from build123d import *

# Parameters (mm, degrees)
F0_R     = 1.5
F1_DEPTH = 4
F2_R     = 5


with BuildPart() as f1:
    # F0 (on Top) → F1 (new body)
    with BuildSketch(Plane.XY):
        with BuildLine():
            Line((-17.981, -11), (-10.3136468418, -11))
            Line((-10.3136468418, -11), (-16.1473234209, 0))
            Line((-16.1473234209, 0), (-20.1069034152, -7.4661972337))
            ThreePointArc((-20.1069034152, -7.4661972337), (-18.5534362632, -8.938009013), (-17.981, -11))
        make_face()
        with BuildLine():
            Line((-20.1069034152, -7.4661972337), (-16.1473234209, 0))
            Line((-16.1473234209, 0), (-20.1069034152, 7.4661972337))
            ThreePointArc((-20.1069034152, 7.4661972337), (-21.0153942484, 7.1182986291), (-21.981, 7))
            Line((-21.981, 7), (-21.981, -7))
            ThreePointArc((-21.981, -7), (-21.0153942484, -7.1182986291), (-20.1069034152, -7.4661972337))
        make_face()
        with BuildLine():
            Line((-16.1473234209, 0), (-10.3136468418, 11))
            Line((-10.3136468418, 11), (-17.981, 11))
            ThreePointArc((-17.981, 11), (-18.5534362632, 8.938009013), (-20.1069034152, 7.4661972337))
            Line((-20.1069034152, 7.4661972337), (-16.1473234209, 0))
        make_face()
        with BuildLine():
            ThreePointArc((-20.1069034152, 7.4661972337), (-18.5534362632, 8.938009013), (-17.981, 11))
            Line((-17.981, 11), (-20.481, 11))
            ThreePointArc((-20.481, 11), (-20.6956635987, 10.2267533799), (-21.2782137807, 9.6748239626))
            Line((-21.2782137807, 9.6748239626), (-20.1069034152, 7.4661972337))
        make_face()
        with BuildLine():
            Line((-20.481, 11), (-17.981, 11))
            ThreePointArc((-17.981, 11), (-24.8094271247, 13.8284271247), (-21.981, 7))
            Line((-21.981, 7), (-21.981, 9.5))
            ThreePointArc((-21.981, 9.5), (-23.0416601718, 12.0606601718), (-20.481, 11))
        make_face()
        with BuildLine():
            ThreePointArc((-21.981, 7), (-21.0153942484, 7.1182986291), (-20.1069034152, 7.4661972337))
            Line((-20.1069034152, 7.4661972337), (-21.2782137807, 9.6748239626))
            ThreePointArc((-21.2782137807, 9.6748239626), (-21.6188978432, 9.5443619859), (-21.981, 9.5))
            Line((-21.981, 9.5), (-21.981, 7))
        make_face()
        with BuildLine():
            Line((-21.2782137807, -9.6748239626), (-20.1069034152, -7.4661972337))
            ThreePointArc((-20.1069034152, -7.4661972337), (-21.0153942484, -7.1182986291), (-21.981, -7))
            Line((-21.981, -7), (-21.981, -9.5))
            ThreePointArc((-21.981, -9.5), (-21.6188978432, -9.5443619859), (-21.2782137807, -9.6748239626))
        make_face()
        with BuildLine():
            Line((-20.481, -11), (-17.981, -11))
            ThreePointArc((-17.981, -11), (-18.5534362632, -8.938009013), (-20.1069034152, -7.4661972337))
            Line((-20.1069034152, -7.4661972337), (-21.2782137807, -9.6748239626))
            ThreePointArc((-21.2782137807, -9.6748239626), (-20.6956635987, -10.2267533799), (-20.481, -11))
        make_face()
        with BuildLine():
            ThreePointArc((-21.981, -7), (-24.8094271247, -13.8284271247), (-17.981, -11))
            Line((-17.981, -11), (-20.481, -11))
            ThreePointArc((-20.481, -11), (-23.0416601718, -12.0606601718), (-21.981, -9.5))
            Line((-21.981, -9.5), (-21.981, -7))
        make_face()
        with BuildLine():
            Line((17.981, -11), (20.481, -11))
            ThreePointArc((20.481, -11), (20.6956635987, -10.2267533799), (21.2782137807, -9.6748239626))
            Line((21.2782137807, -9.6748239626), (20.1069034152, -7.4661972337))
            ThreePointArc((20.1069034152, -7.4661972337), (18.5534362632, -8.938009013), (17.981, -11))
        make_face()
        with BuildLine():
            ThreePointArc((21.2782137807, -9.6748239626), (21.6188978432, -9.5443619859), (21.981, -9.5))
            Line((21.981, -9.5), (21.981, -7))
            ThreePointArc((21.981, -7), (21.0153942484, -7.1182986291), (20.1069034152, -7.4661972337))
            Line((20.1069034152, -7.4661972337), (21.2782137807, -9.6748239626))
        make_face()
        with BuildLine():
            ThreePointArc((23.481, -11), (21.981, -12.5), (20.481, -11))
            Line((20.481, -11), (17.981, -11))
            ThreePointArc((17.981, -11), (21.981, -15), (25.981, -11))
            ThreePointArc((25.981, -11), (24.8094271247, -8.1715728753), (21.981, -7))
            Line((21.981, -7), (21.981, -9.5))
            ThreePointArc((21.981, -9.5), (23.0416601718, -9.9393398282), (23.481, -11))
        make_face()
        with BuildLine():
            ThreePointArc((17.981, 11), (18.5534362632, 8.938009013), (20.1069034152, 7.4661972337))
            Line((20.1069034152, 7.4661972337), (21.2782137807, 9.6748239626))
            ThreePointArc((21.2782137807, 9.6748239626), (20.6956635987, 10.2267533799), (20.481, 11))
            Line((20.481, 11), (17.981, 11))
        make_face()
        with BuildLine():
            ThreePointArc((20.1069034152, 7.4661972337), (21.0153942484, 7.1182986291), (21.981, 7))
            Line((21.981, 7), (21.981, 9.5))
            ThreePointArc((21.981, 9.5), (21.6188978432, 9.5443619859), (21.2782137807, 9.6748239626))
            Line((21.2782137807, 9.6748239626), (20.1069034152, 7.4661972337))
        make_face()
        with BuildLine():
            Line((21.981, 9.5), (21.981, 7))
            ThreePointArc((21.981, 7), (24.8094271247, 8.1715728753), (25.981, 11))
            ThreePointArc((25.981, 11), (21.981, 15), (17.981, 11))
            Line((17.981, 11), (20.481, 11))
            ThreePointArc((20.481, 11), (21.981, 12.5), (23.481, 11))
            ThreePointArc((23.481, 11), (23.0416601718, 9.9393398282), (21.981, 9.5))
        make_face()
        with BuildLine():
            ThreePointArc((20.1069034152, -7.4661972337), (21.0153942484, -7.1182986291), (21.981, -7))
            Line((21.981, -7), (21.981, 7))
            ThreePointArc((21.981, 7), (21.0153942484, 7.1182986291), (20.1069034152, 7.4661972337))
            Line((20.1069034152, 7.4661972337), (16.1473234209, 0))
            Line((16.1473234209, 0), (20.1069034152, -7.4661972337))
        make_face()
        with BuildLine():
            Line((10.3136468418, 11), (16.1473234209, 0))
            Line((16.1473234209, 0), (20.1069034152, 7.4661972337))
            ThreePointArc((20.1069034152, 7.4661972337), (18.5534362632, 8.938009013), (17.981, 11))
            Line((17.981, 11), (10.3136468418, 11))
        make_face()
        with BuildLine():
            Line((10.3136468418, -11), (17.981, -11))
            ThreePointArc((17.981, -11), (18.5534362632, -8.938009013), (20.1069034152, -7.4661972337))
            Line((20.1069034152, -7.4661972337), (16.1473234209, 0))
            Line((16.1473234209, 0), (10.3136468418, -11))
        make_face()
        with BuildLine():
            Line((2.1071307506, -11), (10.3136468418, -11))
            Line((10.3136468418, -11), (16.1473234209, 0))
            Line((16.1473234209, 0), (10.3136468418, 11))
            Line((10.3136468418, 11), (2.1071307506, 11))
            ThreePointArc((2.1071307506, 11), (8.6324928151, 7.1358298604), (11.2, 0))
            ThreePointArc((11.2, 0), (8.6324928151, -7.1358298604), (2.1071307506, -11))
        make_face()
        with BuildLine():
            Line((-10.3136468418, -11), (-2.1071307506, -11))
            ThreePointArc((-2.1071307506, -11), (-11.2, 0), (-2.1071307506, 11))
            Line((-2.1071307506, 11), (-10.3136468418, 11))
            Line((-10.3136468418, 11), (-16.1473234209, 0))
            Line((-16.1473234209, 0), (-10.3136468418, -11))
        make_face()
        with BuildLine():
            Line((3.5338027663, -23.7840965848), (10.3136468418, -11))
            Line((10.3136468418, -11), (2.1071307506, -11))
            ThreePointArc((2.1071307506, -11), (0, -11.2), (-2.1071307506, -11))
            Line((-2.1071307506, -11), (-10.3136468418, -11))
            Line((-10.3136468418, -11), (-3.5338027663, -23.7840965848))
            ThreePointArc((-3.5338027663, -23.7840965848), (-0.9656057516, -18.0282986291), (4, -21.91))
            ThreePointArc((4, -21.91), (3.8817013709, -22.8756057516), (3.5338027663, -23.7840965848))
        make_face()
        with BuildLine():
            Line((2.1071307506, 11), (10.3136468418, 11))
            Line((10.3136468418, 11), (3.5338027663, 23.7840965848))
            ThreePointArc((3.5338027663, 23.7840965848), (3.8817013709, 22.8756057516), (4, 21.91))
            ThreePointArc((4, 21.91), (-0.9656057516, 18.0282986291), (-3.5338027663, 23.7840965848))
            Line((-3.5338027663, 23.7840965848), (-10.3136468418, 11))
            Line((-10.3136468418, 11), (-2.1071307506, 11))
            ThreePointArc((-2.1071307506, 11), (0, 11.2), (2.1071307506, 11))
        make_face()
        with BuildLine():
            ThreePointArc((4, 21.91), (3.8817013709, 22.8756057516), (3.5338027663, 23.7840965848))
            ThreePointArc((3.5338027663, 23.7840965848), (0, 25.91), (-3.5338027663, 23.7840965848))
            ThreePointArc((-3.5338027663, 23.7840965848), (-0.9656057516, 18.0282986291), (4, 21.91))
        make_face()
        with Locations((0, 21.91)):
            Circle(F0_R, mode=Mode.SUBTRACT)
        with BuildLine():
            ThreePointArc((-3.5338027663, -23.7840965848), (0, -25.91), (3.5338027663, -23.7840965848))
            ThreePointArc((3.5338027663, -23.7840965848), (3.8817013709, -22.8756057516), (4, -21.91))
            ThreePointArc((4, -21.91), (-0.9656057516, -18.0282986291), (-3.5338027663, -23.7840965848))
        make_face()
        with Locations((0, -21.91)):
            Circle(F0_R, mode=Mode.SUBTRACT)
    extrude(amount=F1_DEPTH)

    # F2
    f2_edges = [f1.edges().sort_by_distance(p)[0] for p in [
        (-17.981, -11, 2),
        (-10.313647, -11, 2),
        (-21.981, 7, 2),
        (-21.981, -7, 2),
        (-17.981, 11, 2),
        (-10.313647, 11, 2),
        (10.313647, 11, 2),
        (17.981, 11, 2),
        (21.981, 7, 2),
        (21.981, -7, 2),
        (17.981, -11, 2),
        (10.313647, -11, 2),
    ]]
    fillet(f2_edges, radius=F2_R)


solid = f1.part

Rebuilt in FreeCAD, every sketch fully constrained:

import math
import FreeCAD as App
import Part
import Sketcher
from FreeCAD import Vector


def edges_at(feature, points):
    """Names of the edges that pass closest to the given points."""
    edges = feature.Shape.Edges
    near = lambda p: min(range(len(edges)), key=lambda i: edges[i].distToShape(Part.Vertex(*p))[0])
    return sorted({f"Edge{near(p) + 1}" for p in points})

doc = App.newDocument("Part")
body = doc.addObject("PartDesign::Body", "Body")

sketch1 = doc.addObject("Sketcher::SketchObject", "Sketch")
body.addObject(sketch1)
sketch1.AttachmentSupport = (doc.XY_Plane, [""])
sketch1.MapMode = "FlatFace"
sketch1.addGeometry(Part.ArcOfCircle(Part.Circle(Vector(-22, 11, 0), Vector(0, 0, 1), 4), math.radians(0), math.radians(270)), False)
sketch1.addGeometry(Part.LineSegment(Vector(-22, 7, 0), Vector(-22, -7, 0)), False)
sketch1.addGeometry(Part.ArcOfCircle(Part.Circle(Vector(-22, -11, 0), Vector(0, 0, 1), 4), math.radians(90), math.radians(360)), False)
sketch1.addGeometry(Part.LineSegment(Vector(-18, -11, 0), Vector(-10.3, -11, 0)), False)
sketch1.addGeometry(Part.LineSegment(Vector(-10.3, -11, 0), Vector(-3.5, -23.8, 0)), False)
sketch1.addGeometry(Part.ArcOfCircle(Part.Circle(Vector(0, -21.9, 0), Vector(0, 0, 1), 4), math.radians(-152), math.radians(-28)), False)
sketch1.addGeometry(Part.LineSegment(Vector(3.5, -23.8, 0), Vector(10.3, -11, 0)), False)
sketch1.addGeometry(Part.LineSegment(Vector(10.3, -11, 0), Vector(18, -11, 0)), False)
sketch1.addGeometry(Part.ArcOfCircle(Part.Circle(Vector(22, -11, 0), Vector(0, 0, 1), 4), math.radians(180), math.radians(360)), False)
sketch1.addGeometry(Part.ArcOfCircle(Part.Circle(Vector(22, -11, 0), Vector(0, 0, 1), 4), math.radians(0), math.radians(90)), False)
sketch1.addGeometry(Part.LineSegment(Vector(22, -7, 0), Vector(22, 7, 0)), False)
sketch1.addGeometry(Part.ArcOfCircle(Part.Circle(Vector(22, 11, 0), Vector(0, 0, 1), 4), math.radians(-90), math.radians(0)), False)
sketch1.addGeometry(Part.ArcOfCircle(Part.Circle(Vector(22, 11, 0), Vector(0, 0, 1), 4), math.radians(0), math.radians(180)), False)
sketch1.addGeometry(Part.LineSegment(Vector(18, 11, 0), Vector(10.3, 11, 0)), False)
sketch1.addGeometry(Part.LineSegment(Vector(10.3, 11, 0), Vector(3.5, 23.8, 0)), False)
sketch1.addGeometry(Part.ArcOfCircle(Part.Circle(Vector(0, 21.9, 0), Vector(0, 0, 1), 4), math.radians(28), math.radians(152)), False)
sketch1.addGeometry(Part.LineSegment(Vector(-3.5, 23.8, 0), Vector(-10.3, 11, 0)), False)
sketch1.addGeometry(Part.LineSegment(Vector(-10.3, 11, 0), Vector(-18, 11, 0)), False)
sketch1.addGeometry(Part.ArcOfCircle(Part.Circle(Vector(-22, -11, 0), Vector(0, 0, 1), 1.5), math.radians(62), math.radians(90)), False)
sketch1.addGeometry(Part.ArcOfCircle(Part.Circle(Vector(-22, -11, 0), Vector(0, 0, 1), 1.5), math.radians(0), math.radians(62)), False)
sketch1.addGeometry(Part.ArcOfCircle(Part.Circle(Vector(-22, -11, 0), Vector(0, 0, 1), 1.5), math.radians(90), math.radians(360)), False)
sketch1.addGeometry(Part.Circle(Vector(0, -21.9, 0), Vector(0, 0, 1), 1.5), False)
sketch1.addGeometry(Part.ArcOfCircle(Part.Circle(Vector(22, -11, 0), Vector(0, 0, 1), 1.5), math.radians(118), math.radians(180)), False)
sketch1.addGeometry(Part.ArcOfCircle(Part.Circle(Vector(22, -11, 0), Vector(0, 0, 1), 1.5), math.radians(90), math.radians(118)), False)
sketch1.addGeometry(Part.ArcOfCircle(Part.Circle(Vector(22, -11, 0), Vector(0, 0, 1), 1.5), math.radians(0), math.radians(90)), False)
sketch1.addGeometry(Part.ArcOfCircle(Part.Circle(Vector(22, -11, 0), Vector(0, 0, 1), 1.5), math.radians(180), math.radians(360)), False)
sketch1.addGeometry(Part.ArcOfCircle(Part.Circle(Vector(-22, 11, 0), Vector(0, 0, 1), 1.5), math.radians(-62), math.radians(0)), False)
sketch1.addGeometry(Part.ArcOfCircle(Part.Circle(Vector(-22, 11, 0), Vector(0, 0, 1), 1.5), math.radians(-90), math.radians(-62)), False)
sketch1.addGeometry(Part.ArcOfCircle(Part.Circle(Vector(-22, 11, 0), Vector(0, 0, 1), 1.5), math.radians(0), math.radians(270)), False)
sketch1.addGeometry(Part.ArcOfCircle(Part.Circle(Vector(0, 0, 0), Vector(0, 0, 1), 11.2), math.radians(0), math.radians(79)), False)
sketch1.addGeometry(Part.ArcOfCircle(Part.Circle(Vector(0, 0, 0), Vector(0, 0, 1), 11.2), math.radians(-79), math.radians(0)), False)
sketch1.addGeometry(Part.ArcOfCircle(Part.Circle(Vector(0, 0, 0), Vector(0, 0, 1), 11.2), math.radians(-101), math.radians(-79)), False)
sketch1.addGeometry(Part.ArcOfCircle(Part.Circle(Vector(0, 0, 0), Vector(0, 0, 1), 11.2), math.radians(101), math.radians(259)), False)
sketch1.addGeometry(Part.ArcOfCircle(Part.Circle(Vector(0, 0, 0), Vector(0, 0, 1), 11.2), math.radians(79), math.radians(101)), False)
sketch1.addGeometry(Part.ArcOfCircle(Part.Circle(Vector(22, 11, 0), Vector(0, 0, 1), 1.5), math.radians(0), math.radians(180)), False)
sketch1.addGeometry(Part.ArcOfCircle(Part.Circle(Vector(22, 11, 0), Vector(0, 0, 1), 1.5), math.radians(-90), math.radians(0)), False)
sketch1.addGeometry(Part.ArcOfCircle(Part.Circle(Vector(22, 11, 0), Vector(0, 0, 1), 1.5), math.radians(-118), math.radians(-90)), False)
sketch1.addGeometry(Part.ArcOfCircle(Part.Circle(Vector(22, 11, 0), Vector(0, 0, 1), 1.5), math.radians(180), math.radians(242)), False)
sketch1.addGeometry(Part.Circle(Vector(0, 21.9, 0), Vector(0, 0, 1), 1.5), False)
sketch1.addConstraint(Sketcher.Constraint("Coincident", 0, 2, 1, 1))
sketch1.addConstraint(Sketcher.Constraint("Coincident", 1, 2, 2, 1))
sketch1.addConstraint(Sketcher.Constraint("Coincident", 2, 2, 3, 1))
sketch1.addConstraint(Sketcher.Constraint("Coincident", 3, 2, 4, 1))
sketch1.addConstraint(Sketcher.Constraint("Tangent", 4, 2, 5, 1))
sketch1.addConstraint(Sketcher.Constraint("Tangent", 5, 2, 6, 1))
sketch1.addConstraint(Sketcher.Constraint("Coincident", 6, 2, 7, 1))
sketch1.addConstraint(Sketcher.Constraint("Coincident", 7, 2, 8, 1))
sketch1.addConstraint(Sketcher.Constraint("Tangent", 8, 2, 9, 1))
sketch1.addConstraint(Sketcher.Constraint("Coincident", 9, 2, 10, 1))
sketch1.addConstraint(Sketcher.Constraint("Coincident", 10, 2, 11, 1))
sketch1.addConstraint(Sketcher.Constraint("Tangent", 11, 2, 12, 1))
sketch1.addConstraint(Sketcher.Constraint("Coincident", 12, 2, 13, 1))
sketch1.addConstraint(Sketcher.Constraint("Coincident", 13, 2, 14, 1))
sketch1.addConstraint(Sketcher.Constraint("Tangent", 14, 2, 15, 1))
sketch1.addConstraint(Sketcher.Constraint("Tangent", 15, 2, 16, 1))
sketch1.addConstraint(Sketcher.Constraint("Coincident", 16, 2, 17, 1))
sketch1.addConstraint(Sketcher.Constraint("Coincident", 17, 2, 0, 1))
sketch1.addConstraint(Sketcher.Constraint("Tangent", 18, 1, 19, 2))
sketch1.addConstraint(Sketcher.Constraint("Tangent", 19, 1, 20, 2))
sketch1.addConstraint(Sketcher.Constraint("Tangent", 20, 1, 18, 2))
sketch1.addConstraint(Sketcher.Constraint("Tangent", 22, 1, 23, 2))
sketch1.addConstraint(Sketcher.Constraint("Tangent", 23, 1, 24, 2))
sketch1.addConstraint(Sketcher.Constraint("Tangent", 24, 1, 25, 2))
sketch1.addConstraint(Sketcher.Constraint("Tangent", 25, 1, 22, 2))
sketch1.addConstraint(Sketcher.Constraint("Tangent", 26, 1, 27, 2))
sketch1.addConstraint(Sketcher.Constraint("Tangent", 27, 1, 28, 2))
sketch1.addConstraint(Sketcher.Constraint("Tangent", 28, 1, 26, 2))
sketch1.addConstraint(Sketcher.Constraint("Tangent", 29, 1, 30, 2))
sketch1.addConstraint(Sketcher.Constraint("Tangent", 30, 1, 31, 2))
sketch1.addConstraint(Sketcher.Constraint("Tangent", 31, 1, 32, 2))
sketch1.addConstraint(Sketcher.Constraint("Tangent", 32, 1, 33, 2))
sketch1.addConstraint(Sketcher.Constraint("Tangent", 33, 1, 29, 2))
sketch1.addConstraint(Sketcher.Constraint("Tangent", 34, 1, 35, 2))
sketch1.addConstraint(Sketcher.Constraint("Tangent", 35, 1, 36, 2))
sketch1.addConstraint(Sketcher.Constraint("Tangent", 36, 1, 37, 2))
sketch1.addConstraint(Sketcher.Constraint("Tangent", 37, 1, 34, 2))
sketch1.addConstraint(Sketcher.Constraint("Vertical", 1))
sketch1.addConstraint(Sketcher.Constraint("Horizontal", 3))
sketch1.addConstraint(Sketcher.Constraint("Horizontal", 7))
sketch1.addConstraint(Sketcher.Constraint("Vertical", 10))
sketch1.addConstraint(Sketcher.Constraint("Horizontal", 13))
sketch1.addConstraint(Sketcher.Constraint("Horizontal", 17))
sketch1.addConstraint(Sketcher.Constraint("Coincident", 29, 3, -1, 1))
sketch1.addConstraint(Sketcher.Constraint("Coincident", 31, 3, -1, 1))
sketch1.addConstraint(Sketcher.Constraint("Coincident", 18, 3, 2, 3))
sketch1.addConstraint(Sketcher.Constraint("Coincident", 21, 3, 5, 3))
sketch1.addConstraint(Sketcher.Constraint("Coincident", 22, 3, 8, 3))
sketch1.addConstraint(Sketcher.Constraint("Coincident", 26, 3, 0, 3))
sketch1.addConstraint(Sketcher.Constraint("Coincident", 34, 3, 11, 3))
sketch1.addConstraint(Sketcher.Constraint("Coincident", 38, 3, 15, 3))
sketch1.addConstraint(Sketcher.Constraint("Equal", 0, 2))
sketch1.addConstraint(Sketcher.Constraint("Equal", 2, 5))
sketch1.addConstraint(Sketcher.Constraint("Equal", 5, 8))
sketch1.addConstraint(Sketcher.Constraint("Equal", 8, 9))
sketch1.addConstraint(Sketcher.Constraint("Equal", 9, 11))
sketch1.addConstraint(Sketcher.Constraint("Equal", 11, 12))
sketch1.addConstraint(Sketcher.Constraint("Equal", 12, 15))
sketch1.addConstraint(Sketcher.Constraint("Equal", 20, 21))
sketch1.addConstraint(Sketcher.Constraint("Equal", 21, 22))
sketch1.addConstraint(Sketcher.Constraint("Equal", 22, 23))
sketch1.addConstraint(Sketcher.Constraint("Equal", 25, 26))
sketch1.addConstraint(Sketcher.Constraint("Equal", 28, 34))
sketch1.addConstraint(Sketcher.Constraint("Equal", 34, 35))
sketch1.addConstraint(Sketcher.Constraint("Equal", 37, 38))
sketch1.addConstraint(Sketcher.Constraint("Symmetric", 0, 3, 8, 3, -1, 1))
sketch1.addConstraint(Sketcher.Constraint("Symmetric", 2, 3, 11, 3, -1, 1))
sketch1.addConstraint(Sketcher.Constraint("Symmetric", 5, 3, 15, 3, -1, 1))
sketch1.addConstraint(Sketcher.Constraint("Symmetric", 3, 2, 13, 2, -1, 1))
sketch1.addConstraint(Sketcher.Constraint("Symmetric", 6, 2, 16, 2, -1, 1))
sketch1.addConstraint(Sketcher.Constraint("Symmetric", 2, 3, 8, 3, -2))
sketch1.addConstraint(Sketcher.Constraint("Symmetric", 4, 2, 5, 2, -2))
sketch1.addConstraint(Sketcher.Constraint("PointOnObject", 29, 1, -1))
sketch1.addConstraint(Sketcher.Constraint("Horizontal", 25, 3, 2, 2))
sketch1.addConstraint(Sketcher.Constraint("Horizontal", 3, 2, 6, 2))
sketch1.addConstraint(Sketcher.Constraint("Horizontal", 7, 2, 8, 2))
sketch1.addConstraint(Sketcher.Constraint("Horizontal", 37, 3, 11, 2))
sketch1.addConstraint(Sketcher.Constraint("Horizontal", 8, 2, 19, 1))
sketch1.addConstraint(Sketcher.Constraint("Horizontal", 18, 1, 22, 1))
sketch1.addConstraint(Sketcher.Constraint("Horizontal", 19, 1, 24, 1))
sketch1.addConstraint(Sketcher.Constraint("Horizontal", 24, 1, 25, 1))
sketch1.addConstraint(Sketcher.Constraint("Horizontal", 17, 2, 28, 1))
sketch1.addConstraint(Sketcher.Constraint("Horizontal", 25, 1, 30, 1))
sketch1.addConstraint(Sketcher.Constraint("Horizontal", 30, 1, 31, 1))
sketch1.addConstraint(Sketcher.Constraint("Horizontal", 28, 1, 32, 1))
sketch1.addConstraint(Sketcher.Constraint("Horizontal", 32, 1, 33, 1))
sketch1.addConstraint(Sketcher.Constraint("Horizontal", 33, 1, 34, 1))
sketch1.addConstraint(Sketcher.Constraint("Horizontal", 26, 1, 36, 1))
sketch1.addConstraint(Sketcher.Constraint("Horizontal", 34, 1, 37, 1))
sketch1.addConstraint(Sketcher.Constraint("Vertical", 28, 3, 0, 2))
sketch1.addConstraint(Sketcher.Constraint("Vertical", 37, 3, 9, 2))
sketch1.addConstraint(Sketcher.Constraint("Vertical", 1, 2, 20, 1))
sketch1.addConstraint(Sketcher.Constraint("Vertical", 10, 2, 23, 1))
sketch1.addConstraint(Sketcher.Constraint("Vertical", 18, 1, 26, 1))
sketch1.addConstraint(Sketcher.Constraint("Vertical", 20, 1, 27, 1))
sketch1.addConstraint(Sketcher.Constraint("Vertical", 23, 1, 35, 1))
sketch1.addConstraint(Sketcher.Constraint("Diameter", 21, 3.0))
sketch1.addConstraint(Sketcher.Constraint("Radius", 0, 4.0))
sketch1.addConstraint(Sketcher.Constraint("Radius", 29, 11.2))
sketch1.addConstraint(Sketcher.Constraint("DistanceY", 1, 2, 1, 1, 14.0))
sketch1.addConstraint(Sketcher.Constraint("DistanceY", 5, 3, -1, 1, 21.91))
sketch1.addConstraint(Sketcher.Constraint("DistanceX", 0, 3, -1, 1, 21.981))
sketch1.addConstraint(Sketcher.Constraint("Distance", 4, 14.47064))
sketch1.addConstraint(Sketcher.Constraint("DistanceX", 18, 1, -1, 1, 21.278214))
pad1 = doc.addObject("PartDesign::Pad", "Pad")
body.addObject(pad1)
pad1.Profile = sketch1
pad1.Length = 4
doc.recompute()

fillet = doc.addObject("PartDesign::Fillet", "Fillet")
body.addObject(fillet)
fillet.Base = (pad1, edges_at(pad1, [
    (-17.981, -11, 2),
    (-10.314, -11, 2),
    (-21.981, 7, 2),
    (-21.981, -7, 2),
    (-17.981, 11, 2),
    (-10.314, 11, 2),
    (10.314, 11, 2),
    (17.981, 11, 2),
    (21.981, 7, 2),
    (21.981, -7, 2),
    (17.981, -11, 2),
    (10.314, -11, 2),
]))
fillet.Radius = 5

doc.recompute()
